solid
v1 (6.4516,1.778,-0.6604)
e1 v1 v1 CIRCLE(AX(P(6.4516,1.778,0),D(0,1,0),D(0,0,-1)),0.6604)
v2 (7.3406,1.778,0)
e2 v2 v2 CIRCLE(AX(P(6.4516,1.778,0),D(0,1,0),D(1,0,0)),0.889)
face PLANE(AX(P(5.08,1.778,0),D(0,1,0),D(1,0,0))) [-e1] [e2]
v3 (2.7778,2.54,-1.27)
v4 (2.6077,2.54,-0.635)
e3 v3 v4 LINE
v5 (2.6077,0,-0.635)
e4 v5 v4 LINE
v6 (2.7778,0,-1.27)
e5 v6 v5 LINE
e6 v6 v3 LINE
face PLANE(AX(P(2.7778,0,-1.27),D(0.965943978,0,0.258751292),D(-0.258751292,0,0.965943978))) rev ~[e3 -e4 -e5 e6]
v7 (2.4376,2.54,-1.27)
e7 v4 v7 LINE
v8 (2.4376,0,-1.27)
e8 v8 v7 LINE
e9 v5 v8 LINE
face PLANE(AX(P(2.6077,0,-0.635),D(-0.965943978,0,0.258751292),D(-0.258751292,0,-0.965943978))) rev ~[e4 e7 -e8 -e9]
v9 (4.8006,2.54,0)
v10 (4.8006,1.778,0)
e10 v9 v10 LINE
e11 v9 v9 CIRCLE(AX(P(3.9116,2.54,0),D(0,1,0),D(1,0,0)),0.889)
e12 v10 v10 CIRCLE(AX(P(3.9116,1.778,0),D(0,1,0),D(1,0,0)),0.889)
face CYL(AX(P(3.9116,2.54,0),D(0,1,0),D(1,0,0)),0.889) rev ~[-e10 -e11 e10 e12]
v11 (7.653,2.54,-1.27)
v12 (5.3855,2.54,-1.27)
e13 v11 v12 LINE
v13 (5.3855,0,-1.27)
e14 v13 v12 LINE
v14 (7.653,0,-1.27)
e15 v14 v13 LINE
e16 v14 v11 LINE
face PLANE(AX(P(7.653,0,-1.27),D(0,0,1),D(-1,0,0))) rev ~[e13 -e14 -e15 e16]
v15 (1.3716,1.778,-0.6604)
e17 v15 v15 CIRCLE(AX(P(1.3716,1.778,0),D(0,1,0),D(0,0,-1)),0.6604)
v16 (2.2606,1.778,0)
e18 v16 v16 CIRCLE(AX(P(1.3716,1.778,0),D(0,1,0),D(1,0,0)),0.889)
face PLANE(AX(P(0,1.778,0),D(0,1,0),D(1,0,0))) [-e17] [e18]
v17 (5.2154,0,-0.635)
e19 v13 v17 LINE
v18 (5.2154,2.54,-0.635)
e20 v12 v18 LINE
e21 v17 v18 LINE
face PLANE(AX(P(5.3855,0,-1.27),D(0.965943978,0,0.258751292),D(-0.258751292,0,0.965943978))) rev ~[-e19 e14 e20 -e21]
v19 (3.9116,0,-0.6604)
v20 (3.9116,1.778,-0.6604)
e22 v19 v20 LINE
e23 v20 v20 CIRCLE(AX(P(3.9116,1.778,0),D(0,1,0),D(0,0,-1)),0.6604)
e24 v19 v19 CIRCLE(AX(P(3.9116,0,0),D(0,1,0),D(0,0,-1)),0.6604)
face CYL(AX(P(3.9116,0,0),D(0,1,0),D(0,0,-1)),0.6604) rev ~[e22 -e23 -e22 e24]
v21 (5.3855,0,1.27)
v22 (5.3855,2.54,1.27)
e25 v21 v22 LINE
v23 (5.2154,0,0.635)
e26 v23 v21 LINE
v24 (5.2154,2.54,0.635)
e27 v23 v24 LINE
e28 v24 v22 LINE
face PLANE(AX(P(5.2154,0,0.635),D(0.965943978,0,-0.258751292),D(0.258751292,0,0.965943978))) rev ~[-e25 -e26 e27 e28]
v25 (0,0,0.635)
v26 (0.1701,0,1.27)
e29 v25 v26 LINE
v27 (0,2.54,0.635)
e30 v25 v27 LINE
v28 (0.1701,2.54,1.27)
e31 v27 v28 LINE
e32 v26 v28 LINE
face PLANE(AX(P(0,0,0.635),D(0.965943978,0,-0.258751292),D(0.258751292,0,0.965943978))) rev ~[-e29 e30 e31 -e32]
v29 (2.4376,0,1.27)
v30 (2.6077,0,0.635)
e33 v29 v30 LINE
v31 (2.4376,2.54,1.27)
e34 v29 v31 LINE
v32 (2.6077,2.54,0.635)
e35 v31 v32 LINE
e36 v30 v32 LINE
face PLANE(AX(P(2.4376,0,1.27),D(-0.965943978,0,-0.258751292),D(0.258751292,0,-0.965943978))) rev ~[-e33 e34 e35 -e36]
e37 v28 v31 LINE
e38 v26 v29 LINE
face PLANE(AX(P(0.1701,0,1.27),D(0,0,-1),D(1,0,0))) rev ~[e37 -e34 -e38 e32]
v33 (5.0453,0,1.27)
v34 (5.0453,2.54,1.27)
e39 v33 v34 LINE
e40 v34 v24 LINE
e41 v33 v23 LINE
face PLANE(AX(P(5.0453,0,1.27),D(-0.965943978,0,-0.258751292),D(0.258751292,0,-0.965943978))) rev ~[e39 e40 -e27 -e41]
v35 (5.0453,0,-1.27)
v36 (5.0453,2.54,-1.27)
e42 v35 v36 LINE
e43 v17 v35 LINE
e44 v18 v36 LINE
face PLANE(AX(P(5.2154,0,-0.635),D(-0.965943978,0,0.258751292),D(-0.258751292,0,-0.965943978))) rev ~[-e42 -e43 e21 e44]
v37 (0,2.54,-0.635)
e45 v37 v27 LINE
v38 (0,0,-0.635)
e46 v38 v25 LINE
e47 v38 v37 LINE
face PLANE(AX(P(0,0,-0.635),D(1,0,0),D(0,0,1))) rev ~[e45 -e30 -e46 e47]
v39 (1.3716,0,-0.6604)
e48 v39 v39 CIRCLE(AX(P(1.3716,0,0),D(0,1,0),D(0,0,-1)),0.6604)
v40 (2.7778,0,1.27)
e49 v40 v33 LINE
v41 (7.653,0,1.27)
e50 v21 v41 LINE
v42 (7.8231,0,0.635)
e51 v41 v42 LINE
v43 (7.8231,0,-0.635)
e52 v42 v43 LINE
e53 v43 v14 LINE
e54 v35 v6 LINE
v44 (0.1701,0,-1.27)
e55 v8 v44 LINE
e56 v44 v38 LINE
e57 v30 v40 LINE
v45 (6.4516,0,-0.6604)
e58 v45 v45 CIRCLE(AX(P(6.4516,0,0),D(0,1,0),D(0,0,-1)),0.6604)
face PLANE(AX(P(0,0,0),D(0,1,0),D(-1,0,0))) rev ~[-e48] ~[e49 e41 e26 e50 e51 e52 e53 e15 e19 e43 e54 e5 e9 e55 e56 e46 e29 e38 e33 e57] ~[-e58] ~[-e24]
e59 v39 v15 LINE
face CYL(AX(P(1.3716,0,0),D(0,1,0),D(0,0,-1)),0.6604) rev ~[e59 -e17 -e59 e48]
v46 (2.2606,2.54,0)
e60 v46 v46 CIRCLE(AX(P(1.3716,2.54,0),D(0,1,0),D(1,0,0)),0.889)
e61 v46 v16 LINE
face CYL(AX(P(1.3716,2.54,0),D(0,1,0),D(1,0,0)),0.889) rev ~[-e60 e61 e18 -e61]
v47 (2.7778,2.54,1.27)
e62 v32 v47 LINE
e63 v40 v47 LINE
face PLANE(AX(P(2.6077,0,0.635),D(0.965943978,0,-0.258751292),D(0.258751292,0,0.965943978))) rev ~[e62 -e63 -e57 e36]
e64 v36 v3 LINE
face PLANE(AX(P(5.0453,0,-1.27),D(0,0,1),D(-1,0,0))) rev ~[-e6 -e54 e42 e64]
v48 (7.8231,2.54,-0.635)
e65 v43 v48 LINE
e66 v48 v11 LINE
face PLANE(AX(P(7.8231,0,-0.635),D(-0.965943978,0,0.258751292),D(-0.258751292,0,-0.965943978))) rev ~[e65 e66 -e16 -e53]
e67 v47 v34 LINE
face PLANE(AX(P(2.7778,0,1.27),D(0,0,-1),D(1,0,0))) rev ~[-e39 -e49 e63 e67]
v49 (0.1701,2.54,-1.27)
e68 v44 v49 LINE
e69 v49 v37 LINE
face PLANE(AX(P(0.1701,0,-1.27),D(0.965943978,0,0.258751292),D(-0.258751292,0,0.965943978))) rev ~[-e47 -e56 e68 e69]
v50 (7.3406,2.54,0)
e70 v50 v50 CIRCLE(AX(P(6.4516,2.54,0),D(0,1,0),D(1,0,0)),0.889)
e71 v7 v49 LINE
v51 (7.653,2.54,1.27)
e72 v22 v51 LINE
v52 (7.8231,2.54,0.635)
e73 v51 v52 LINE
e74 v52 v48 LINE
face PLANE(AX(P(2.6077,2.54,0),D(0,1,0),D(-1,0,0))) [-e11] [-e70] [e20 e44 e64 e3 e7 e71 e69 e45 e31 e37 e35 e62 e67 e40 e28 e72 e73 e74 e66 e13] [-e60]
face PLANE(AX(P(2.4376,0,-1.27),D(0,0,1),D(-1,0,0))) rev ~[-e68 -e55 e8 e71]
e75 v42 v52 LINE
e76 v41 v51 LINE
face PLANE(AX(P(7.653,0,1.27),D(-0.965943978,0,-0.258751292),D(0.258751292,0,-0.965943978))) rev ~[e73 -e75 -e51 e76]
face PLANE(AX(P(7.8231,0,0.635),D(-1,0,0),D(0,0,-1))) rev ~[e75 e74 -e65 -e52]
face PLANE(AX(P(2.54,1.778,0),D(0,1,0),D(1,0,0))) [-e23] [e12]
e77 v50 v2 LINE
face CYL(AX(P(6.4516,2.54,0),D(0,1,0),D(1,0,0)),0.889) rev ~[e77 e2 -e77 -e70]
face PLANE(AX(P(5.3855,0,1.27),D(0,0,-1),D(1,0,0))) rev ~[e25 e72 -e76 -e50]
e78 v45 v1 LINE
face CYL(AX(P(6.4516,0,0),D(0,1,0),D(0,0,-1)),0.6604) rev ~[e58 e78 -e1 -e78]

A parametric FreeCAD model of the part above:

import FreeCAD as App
import Part
import Sketcher

V = App.Vector
Q = App.Units.Quantity

doc = App.newDocument("Part")
body = doc.addObject("PartDesign::Body", "Body")

# Sketch on XZ plane
sketch1 = body.newObject("Sketcher::SketchObject", "Sketch")
sketch1.AttachmentSupport = (doc.getObject("XZ_Plane"), [""])
sketch1.MapMode = "FlatFace"
sketch1.addGeometry([
    Part.LineSegment(V(7.5692, -0.635, 0), V(0.254, -0.635, 0)),
    Part.LineSegment(V(0.254, -0.635, 0), V(0.254, 0.635, 0)),
    Part.LineSegment(V(0.254, 0.635, 0), V(7.5692, 0.635, 0)),
    Part.LineSegment(V(7.5692, 0.635, 0), V(7.5692, -0.635, 0)),
], False)
sketch1.addConstraint([
    Sketcher.Constraint("Coincident", 0, 2, 1, 1),
    Sketcher.Constraint("Coincident", 1, 2, 2, 1),
    Sketcher.Constraint("Coincident", 2, 2, 3, 1),
    Sketcher.Constraint("Coincident", 3, 2, 0, 1),
    Sketcher.Constraint("Horizontal", 0),
    Sketcher.Constraint("Vertical", 1),
    Sketcher.Constraint("Horizontal", 2),
    Sketcher.Constraint("Vertical", 3),
    Sketcher.Constraint("DistanceY", 1, 1, 1, 2, Q("0.05 in")),
    Sketcher.Constraint("DistanceX", 0, 2, 0, 1, Q("0.288 in")),
    Sketcher.Constraint("DistanceX", -1, 1, 0, 2, Q("0.01 in")),
    Sketcher.Constraint("DistanceY", 0, 2, -1, 1, Q("0.025 in")),
])
pad1 = body.newObject("PartDesign::Pad", "Pad")
pad1.Profile = sketch1
pad1.Length = Q("0.1 in")
pad1.Reversed = True

# Sketch on XZ plane
sketch2 = body.newObject("Sketcher::SketchObject", "Sketch001")
sketch2.AttachmentSupport = (doc.getObject("XZ_Plane"), [""])
sketch2.MapMode = "FlatFace"
sketch2.addGeometry([
    Part.LineSegment(V(0, -0.635, 0), V(0, 0.635, 0)),  # 0
    Part.LineSegment(V(0, 0.635, 0), V(0.1701, 1.27, 0)),  # 1
    Part.LineSegment(V(0.1701, 1.27, 0), V(2.4376, 1.27, 0)),  # 2
    Part.LineSegment(V(2.4376, 1.27, 0), V(2.6077, 0.635, 0)),  # 3
    Part.LineSegment(V(2.6077, 0.635, 0), V(2.6077, -0.635, 0)),  # 4
    Part.LineSegment(V(2.6077, -0.635, 0), V(2.4376, -1.27, 0)),  # 5
    Part.LineSegment(V(2.4376, -1.27, 0), V(0.1701, -1.27, 0)),  # 6
    Part.LineSegment(V(0.1701, -1.27, 0), V(0, -0.635, 0)),  # 7
], False)
sketch2.addConstraint([
    Sketcher.Constraint("Coincident", 0, 2, 1, 1),
    Sketcher.Constraint("Coincident", 1, 2, 2, 1),
    Sketcher.Constraint("Coincident", 2, 2, 3, 1),
    Sketcher.Constraint("Coincident", 3, 2, 4, 1),
    Sketcher.Constraint("Coincident", 4, 2, 5, 1),
    Sketcher.Constraint("Coincident", 5, 2, 6, 1),
    Sketcher.Constraint("Coincident", 6, 2, 7, 1),
    Sketcher.Constraint("Coincident", 7, 2, 0, 1),
    Sketcher.Constraint("Vertical", 0),
    Sketcher.Constraint("Horizontal", 2),
    Sketcher.Constraint("Vertical", 4),
    Sketcher.Constraint("Horizontal", 6),
    Sketcher.Constraint("Symmetric", 0, 2, 7, 2, -1, 1),
    Sketcher.Constraint("Symmetric", 2, 2, 5, 2, -1),
    Sketcher.Constraint("Parallel", 1, 5),
    Sketcher.Constraint("Parallel", 3, 7),
    Sketcher.Constraint("Horizontal", 0, 2, 3, 2),
    Sketcher.Constraint("Horizontal", 4, 2, 7, 2),
    Sketcher.Constraint("DistanceY", 0, 1, 0, 2, Q("0.05 in")),
    Sketcher.Constraint("DistanceY", 5, 2, 2, 2, Q("0.1 in")),
    Sketcher.Constraint("DistanceX", 2, 1, 2, 2, Q("2.2675 mm")),
    Sketcher.Constraint("DistanceX", -1, 1, 1, 2, Q("0.0067 in")),
])
pad2 = body.newObject("PartDesign::Pad", "Pad001")
pad2.Profile = sketch2
pad2.Length = Q("0.1 in")
pad2.Reversed = True
doc.recompute()

linearpattern = body.newObject("PartDesign::LinearPattern", "LinearPattern")
linearpattern.Originals = [pad2]
linearpattern.Direction = (doc.getObject("X_Axis"), [""])
linearpattern.Mode = "offset"
linearpattern.Offset = 2.6077
linearpattern.Occurrences = 3
body.Tip = linearpattern

# Sketch on XZ plane
sketch3 = body.newObject("Sketcher::SketchObject", "Sketch002")
sketch3.AttachmentSupport = (doc.getObject("XZ_Plane"), [""])
sketch3.MapMode = "FlatFace"
sketch3.addGeometry(Part.Circle(V(1.3716, 0, 0), V(0, 0, 1), 0.6604), False)
sketch3.addConstraint([
    Sketcher.Constraint("PointOnObject", 0, 3, -1),
    Sketcher.Constraint("Diameter", 0, Q("0.052 in")),
    Sketcher.Constraint("DistanceX", -1, 1, 0, 3, Q("0.054 in")),
])
doc.recompute()
hole = body.newObject("PartDesign::Hole", "Hole")
hole.Profile = sketch3
hole.ThreadType = "None"
hole.Diameter = Q("0.052 in")
hole.DepthType = "Dimension"
hole.Depth = Q("0.1 in")
hole.DrillPoint = "Flat"
doc.recompute()

linearpattern2 = body.newObject("PartDesign::LinearPattern", "LinearPattern001")
linearpattern2.Originals = [hole]
linearpattern2.Direction = (doc.getObject("X_Axis"), [""])
linearpattern2.Mode = "offset"
linearpattern2.Offset = Q("0.1 in")
linearpattern2.Occurrences = 3
body.Tip = linearpattern2

# Sketch on XZ plane
sketch4 = body.newObject("Sketcher::SketchObject", "Sketch003")
sketch4.AttachmentSupport = (doc.getObject("XZ_Plane"), [""])
sketch4.MapMode = "FlatFace"
sketch4.AttachmentOffset = App.Placement(V(0, 0, -0.1 * 25.4), App.Rotation())
sketch4.addGeometry(Part.Circle(V(1.3716, 0, 0), V(0, 0, 1), 0.889), False)
sketch4.addConstraint([
    Sketcher.Constraint("PointOnObject", 0, 3, -1),
    Sketcher.Constraint("Diameter", 0, Q("0.07 in")),
    Sketcher.Constraint("DistanceX", -1, 1, 0, 3, Q("0.054 in")),
])
pocket1 = body.newObject("PartDesign::Pocket", "Pocket")
pocket1.Profile = sketch4
pocket1.Length = Q("0.03 in")
pocket1.Reversed = True
doc.recompute()

linearpattern3 = body.newObject("PartDesign::LinearPattern", "LinearPattern002")
linearpattern3.Originals = [pocket1]
linearpattern3.Direction = (doc.getObject("X_Axis"), [""])
linearpattern3.Mode = "offset"
linearpattern3.Offset = Q("0.1 in")
linearpattern3.Occurrences = 3
body.Tip = linearpattern3

doc.recompute()
